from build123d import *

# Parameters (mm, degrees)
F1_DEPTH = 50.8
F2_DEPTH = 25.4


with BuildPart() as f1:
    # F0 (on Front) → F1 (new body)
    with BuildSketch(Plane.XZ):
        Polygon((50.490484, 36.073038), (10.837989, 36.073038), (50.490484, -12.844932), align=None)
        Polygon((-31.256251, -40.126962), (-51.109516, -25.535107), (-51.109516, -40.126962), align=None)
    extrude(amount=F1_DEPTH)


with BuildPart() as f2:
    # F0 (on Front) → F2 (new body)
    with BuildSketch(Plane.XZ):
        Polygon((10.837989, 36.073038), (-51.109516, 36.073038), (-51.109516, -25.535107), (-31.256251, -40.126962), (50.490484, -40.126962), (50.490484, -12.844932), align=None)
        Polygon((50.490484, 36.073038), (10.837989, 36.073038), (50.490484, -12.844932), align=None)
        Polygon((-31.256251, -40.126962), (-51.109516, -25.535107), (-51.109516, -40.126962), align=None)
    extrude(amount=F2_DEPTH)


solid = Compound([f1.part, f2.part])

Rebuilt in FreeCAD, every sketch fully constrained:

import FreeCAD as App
import Part
import Sketcher
Q = App.Units.Quantity

doc = App.newDocument("Part")
params = doc.addObject("Spreadsheet::Sheet", "Params")
for row, (alias, value) in enumerate([
    ("pad1_length", "2 in"),
    ("sketch2_width", "4 in"),
    ("sketch2_height", "3 in"),
    ("pad2_length", "1 in"),
], start=1):
    params.set(f"A{row}", alias)
    params.set(f"B{row}", "=" + value)
    params.setAlias(f"B{row}", alias)

body = doc.addObject("PartDesign::Body", "Body")
body.AllowCompound = True

# Sketch on XZ plane
sketch1 = doc.addObject("Sketcher::SketchObject", "Sketch")
body.addObject(sketch1)
sketch1.AttachmentSupport = (doc.XZ_Plane, [""])
sketch1.MapMode = "FlatFace"
sketch1.addGeometry([
    Part.LineSegment(App.Vector(50.490484, 36.073038, 0), App.Vector(10.837989, 36.073038, 0)),  # 0
    Part.LineSegment(App.Vector(10.837989, 36.073038, 0), App.Vector(50.490484, -12.844932, 0)),  # 1
    Part.LineSegment(App.Vector(50.490484, -12.844932, 0), App.Vector(50.490484, 36.073038, 0)),  # 2
    Part.LineSegment(App.Vector(-31.256251, -40.126962, 0), App.Vector(-51.109516, -25.535107, 0)),  # 3
    Part.LineSegment(App.Vector(-51.109516, -25.535107, 0), App.Vector(-51.109516, -40.126962, 0)),  # 4
    Part.LineSegment(App.Vector(-51.109516, -40.126962, 0), App.Vector(-31.256251, -40.126962, 0)),  # 5
], False)
sketch1.addConstraint([
    Sketcher.Constraint("Coincident", 0, 2, 1, 1),
    Sketcher.Constraint("Coincident", 1, 2, 2, 1),
    Sketcher.Constraint("Coincident", 2, 2, 0, 1),
    Sketcher.Constraint("Coincident", 3, 2, 4, 1),
    Sketcher.Constraint("Coincident", 4, 2, 5, 1),
    Sketcher.Constraint("Coincident", 5, 2, 3, 1),
    Sketcher.Constraint("Horizontal", 0),
    Sketcher.Constraint("Vertical", 2),
    Sketcher.Constraint("Vertical", 4),
    Sketcher.Constraint("Horizontal", 5),
    Sketcher.Constraint("DistanceX", 3, 2, 1, 2, Q("4 in")),
    Sketcher.Constraint("DistanceY", 4, 2, 0, 2, Q("3 in")),
    Sketcher.Constraint("DistanceY", 2, 1, 2, 2, Q("48.91797 mm")),
    Sketcher.Constraint("Distance", 3, Q("24.638879 mm")),
    Sketcher.Constraint("DistanceX", 0, 2, 0, 1, Q("39.652495 mm")),
    Sketcher.Constraint("DistanceX", 5, 1, 5, 2, Q("19.853265 mm")),
    Sketcher.Constraint("DistanceX", -1, 1, 0, 2, Q("10.837989 mm")),
    Sketcher.Constraint("DistanceY", -1, 1, 0, 2, Q("36.073038 mm")),
])
pad1 = doc.addObject("PartDesign::Pad", "Pad")
body.addObject(pad1)
pad1.Profile = sketch1
pad1.setExpression("Length", "Params.pad1_length")
body2 = doc.addObject("PartDesign::Body", "Body001")

# Sketch on XZ plane
sketch2 = doc.addObject("Sketcher::SketchObject", "Sketch001")
body2.addObject(sketch2)
sketch2.AttachmentSupport = (doc.getObject("XZ_Plane001"), [""])
sketch2.MapMode = "FlatFace"
sketch2.addGeometry([
    Part.LineSegment(App.Vector(-51.109516, 36.073038, 0), App.Vector(-51.109516, -40.126962, 0)),
    Part.LineSegment(App.Vector(-51.109516, -40.126962, 0), App.Vector(50.490484, -40.126962, 0)),
    Part.LineSegment(App.Vector(50.490484, -40.126962, 0), App.Vector(50.490484, 36.073038, 0)),
    Part.LineSegment(App.Vector(50.490484, 36.073038, 0), App.Vector(-51.109516, 36.073038, 0)),
], False)
sketch2.addConstraint([
    Sketcher.Constraint("Coincident", 0, 2, 1, 1),
    Sketcher.Constraint("Coincident", 1, 2, 2, 1),
    Sketcher.Constraint("Coincident", 2, 2, 3, 1),
    Sketcher.Constraint("Coincident", 3, 2, 0, 1),
    Sketcher.Constraint("Vertical", 0),
    Sketcher.Constraint("Horizontal", 1),
    Sketcher.Constraint("Vertical", 2),
    Sketcher.Constraint("Horizontal", 3),
    Sketcher.Constraint("DistanceX", 1, 1, 1, 2, Q("4 in")),
    Sketcher.Constraint("DistanceY", 0, 2, 0, 1, Q("3 in")),
    Sketcher.Constraint("DistanceX", 0, 2, -1, 1, Q("51.109516 mm")),
    Sketcher.Constraint("DistanceY", 0, 2, -1, 1, Q("40.126962 mm")),
])
sketch2.setExpression("Constraints[8]", "Params.sketch2_width")
sketch2.setExpression("Constraints[9]", "Params.sketch2_height")
pad2 = doc.addObject("PartDesign::Pad", "Pad001")
body2.addObject(pad2)
pad2.Profile = sketch2
pad2.setExpression("Length", "Params.pad2_length")

doc.recompute()
